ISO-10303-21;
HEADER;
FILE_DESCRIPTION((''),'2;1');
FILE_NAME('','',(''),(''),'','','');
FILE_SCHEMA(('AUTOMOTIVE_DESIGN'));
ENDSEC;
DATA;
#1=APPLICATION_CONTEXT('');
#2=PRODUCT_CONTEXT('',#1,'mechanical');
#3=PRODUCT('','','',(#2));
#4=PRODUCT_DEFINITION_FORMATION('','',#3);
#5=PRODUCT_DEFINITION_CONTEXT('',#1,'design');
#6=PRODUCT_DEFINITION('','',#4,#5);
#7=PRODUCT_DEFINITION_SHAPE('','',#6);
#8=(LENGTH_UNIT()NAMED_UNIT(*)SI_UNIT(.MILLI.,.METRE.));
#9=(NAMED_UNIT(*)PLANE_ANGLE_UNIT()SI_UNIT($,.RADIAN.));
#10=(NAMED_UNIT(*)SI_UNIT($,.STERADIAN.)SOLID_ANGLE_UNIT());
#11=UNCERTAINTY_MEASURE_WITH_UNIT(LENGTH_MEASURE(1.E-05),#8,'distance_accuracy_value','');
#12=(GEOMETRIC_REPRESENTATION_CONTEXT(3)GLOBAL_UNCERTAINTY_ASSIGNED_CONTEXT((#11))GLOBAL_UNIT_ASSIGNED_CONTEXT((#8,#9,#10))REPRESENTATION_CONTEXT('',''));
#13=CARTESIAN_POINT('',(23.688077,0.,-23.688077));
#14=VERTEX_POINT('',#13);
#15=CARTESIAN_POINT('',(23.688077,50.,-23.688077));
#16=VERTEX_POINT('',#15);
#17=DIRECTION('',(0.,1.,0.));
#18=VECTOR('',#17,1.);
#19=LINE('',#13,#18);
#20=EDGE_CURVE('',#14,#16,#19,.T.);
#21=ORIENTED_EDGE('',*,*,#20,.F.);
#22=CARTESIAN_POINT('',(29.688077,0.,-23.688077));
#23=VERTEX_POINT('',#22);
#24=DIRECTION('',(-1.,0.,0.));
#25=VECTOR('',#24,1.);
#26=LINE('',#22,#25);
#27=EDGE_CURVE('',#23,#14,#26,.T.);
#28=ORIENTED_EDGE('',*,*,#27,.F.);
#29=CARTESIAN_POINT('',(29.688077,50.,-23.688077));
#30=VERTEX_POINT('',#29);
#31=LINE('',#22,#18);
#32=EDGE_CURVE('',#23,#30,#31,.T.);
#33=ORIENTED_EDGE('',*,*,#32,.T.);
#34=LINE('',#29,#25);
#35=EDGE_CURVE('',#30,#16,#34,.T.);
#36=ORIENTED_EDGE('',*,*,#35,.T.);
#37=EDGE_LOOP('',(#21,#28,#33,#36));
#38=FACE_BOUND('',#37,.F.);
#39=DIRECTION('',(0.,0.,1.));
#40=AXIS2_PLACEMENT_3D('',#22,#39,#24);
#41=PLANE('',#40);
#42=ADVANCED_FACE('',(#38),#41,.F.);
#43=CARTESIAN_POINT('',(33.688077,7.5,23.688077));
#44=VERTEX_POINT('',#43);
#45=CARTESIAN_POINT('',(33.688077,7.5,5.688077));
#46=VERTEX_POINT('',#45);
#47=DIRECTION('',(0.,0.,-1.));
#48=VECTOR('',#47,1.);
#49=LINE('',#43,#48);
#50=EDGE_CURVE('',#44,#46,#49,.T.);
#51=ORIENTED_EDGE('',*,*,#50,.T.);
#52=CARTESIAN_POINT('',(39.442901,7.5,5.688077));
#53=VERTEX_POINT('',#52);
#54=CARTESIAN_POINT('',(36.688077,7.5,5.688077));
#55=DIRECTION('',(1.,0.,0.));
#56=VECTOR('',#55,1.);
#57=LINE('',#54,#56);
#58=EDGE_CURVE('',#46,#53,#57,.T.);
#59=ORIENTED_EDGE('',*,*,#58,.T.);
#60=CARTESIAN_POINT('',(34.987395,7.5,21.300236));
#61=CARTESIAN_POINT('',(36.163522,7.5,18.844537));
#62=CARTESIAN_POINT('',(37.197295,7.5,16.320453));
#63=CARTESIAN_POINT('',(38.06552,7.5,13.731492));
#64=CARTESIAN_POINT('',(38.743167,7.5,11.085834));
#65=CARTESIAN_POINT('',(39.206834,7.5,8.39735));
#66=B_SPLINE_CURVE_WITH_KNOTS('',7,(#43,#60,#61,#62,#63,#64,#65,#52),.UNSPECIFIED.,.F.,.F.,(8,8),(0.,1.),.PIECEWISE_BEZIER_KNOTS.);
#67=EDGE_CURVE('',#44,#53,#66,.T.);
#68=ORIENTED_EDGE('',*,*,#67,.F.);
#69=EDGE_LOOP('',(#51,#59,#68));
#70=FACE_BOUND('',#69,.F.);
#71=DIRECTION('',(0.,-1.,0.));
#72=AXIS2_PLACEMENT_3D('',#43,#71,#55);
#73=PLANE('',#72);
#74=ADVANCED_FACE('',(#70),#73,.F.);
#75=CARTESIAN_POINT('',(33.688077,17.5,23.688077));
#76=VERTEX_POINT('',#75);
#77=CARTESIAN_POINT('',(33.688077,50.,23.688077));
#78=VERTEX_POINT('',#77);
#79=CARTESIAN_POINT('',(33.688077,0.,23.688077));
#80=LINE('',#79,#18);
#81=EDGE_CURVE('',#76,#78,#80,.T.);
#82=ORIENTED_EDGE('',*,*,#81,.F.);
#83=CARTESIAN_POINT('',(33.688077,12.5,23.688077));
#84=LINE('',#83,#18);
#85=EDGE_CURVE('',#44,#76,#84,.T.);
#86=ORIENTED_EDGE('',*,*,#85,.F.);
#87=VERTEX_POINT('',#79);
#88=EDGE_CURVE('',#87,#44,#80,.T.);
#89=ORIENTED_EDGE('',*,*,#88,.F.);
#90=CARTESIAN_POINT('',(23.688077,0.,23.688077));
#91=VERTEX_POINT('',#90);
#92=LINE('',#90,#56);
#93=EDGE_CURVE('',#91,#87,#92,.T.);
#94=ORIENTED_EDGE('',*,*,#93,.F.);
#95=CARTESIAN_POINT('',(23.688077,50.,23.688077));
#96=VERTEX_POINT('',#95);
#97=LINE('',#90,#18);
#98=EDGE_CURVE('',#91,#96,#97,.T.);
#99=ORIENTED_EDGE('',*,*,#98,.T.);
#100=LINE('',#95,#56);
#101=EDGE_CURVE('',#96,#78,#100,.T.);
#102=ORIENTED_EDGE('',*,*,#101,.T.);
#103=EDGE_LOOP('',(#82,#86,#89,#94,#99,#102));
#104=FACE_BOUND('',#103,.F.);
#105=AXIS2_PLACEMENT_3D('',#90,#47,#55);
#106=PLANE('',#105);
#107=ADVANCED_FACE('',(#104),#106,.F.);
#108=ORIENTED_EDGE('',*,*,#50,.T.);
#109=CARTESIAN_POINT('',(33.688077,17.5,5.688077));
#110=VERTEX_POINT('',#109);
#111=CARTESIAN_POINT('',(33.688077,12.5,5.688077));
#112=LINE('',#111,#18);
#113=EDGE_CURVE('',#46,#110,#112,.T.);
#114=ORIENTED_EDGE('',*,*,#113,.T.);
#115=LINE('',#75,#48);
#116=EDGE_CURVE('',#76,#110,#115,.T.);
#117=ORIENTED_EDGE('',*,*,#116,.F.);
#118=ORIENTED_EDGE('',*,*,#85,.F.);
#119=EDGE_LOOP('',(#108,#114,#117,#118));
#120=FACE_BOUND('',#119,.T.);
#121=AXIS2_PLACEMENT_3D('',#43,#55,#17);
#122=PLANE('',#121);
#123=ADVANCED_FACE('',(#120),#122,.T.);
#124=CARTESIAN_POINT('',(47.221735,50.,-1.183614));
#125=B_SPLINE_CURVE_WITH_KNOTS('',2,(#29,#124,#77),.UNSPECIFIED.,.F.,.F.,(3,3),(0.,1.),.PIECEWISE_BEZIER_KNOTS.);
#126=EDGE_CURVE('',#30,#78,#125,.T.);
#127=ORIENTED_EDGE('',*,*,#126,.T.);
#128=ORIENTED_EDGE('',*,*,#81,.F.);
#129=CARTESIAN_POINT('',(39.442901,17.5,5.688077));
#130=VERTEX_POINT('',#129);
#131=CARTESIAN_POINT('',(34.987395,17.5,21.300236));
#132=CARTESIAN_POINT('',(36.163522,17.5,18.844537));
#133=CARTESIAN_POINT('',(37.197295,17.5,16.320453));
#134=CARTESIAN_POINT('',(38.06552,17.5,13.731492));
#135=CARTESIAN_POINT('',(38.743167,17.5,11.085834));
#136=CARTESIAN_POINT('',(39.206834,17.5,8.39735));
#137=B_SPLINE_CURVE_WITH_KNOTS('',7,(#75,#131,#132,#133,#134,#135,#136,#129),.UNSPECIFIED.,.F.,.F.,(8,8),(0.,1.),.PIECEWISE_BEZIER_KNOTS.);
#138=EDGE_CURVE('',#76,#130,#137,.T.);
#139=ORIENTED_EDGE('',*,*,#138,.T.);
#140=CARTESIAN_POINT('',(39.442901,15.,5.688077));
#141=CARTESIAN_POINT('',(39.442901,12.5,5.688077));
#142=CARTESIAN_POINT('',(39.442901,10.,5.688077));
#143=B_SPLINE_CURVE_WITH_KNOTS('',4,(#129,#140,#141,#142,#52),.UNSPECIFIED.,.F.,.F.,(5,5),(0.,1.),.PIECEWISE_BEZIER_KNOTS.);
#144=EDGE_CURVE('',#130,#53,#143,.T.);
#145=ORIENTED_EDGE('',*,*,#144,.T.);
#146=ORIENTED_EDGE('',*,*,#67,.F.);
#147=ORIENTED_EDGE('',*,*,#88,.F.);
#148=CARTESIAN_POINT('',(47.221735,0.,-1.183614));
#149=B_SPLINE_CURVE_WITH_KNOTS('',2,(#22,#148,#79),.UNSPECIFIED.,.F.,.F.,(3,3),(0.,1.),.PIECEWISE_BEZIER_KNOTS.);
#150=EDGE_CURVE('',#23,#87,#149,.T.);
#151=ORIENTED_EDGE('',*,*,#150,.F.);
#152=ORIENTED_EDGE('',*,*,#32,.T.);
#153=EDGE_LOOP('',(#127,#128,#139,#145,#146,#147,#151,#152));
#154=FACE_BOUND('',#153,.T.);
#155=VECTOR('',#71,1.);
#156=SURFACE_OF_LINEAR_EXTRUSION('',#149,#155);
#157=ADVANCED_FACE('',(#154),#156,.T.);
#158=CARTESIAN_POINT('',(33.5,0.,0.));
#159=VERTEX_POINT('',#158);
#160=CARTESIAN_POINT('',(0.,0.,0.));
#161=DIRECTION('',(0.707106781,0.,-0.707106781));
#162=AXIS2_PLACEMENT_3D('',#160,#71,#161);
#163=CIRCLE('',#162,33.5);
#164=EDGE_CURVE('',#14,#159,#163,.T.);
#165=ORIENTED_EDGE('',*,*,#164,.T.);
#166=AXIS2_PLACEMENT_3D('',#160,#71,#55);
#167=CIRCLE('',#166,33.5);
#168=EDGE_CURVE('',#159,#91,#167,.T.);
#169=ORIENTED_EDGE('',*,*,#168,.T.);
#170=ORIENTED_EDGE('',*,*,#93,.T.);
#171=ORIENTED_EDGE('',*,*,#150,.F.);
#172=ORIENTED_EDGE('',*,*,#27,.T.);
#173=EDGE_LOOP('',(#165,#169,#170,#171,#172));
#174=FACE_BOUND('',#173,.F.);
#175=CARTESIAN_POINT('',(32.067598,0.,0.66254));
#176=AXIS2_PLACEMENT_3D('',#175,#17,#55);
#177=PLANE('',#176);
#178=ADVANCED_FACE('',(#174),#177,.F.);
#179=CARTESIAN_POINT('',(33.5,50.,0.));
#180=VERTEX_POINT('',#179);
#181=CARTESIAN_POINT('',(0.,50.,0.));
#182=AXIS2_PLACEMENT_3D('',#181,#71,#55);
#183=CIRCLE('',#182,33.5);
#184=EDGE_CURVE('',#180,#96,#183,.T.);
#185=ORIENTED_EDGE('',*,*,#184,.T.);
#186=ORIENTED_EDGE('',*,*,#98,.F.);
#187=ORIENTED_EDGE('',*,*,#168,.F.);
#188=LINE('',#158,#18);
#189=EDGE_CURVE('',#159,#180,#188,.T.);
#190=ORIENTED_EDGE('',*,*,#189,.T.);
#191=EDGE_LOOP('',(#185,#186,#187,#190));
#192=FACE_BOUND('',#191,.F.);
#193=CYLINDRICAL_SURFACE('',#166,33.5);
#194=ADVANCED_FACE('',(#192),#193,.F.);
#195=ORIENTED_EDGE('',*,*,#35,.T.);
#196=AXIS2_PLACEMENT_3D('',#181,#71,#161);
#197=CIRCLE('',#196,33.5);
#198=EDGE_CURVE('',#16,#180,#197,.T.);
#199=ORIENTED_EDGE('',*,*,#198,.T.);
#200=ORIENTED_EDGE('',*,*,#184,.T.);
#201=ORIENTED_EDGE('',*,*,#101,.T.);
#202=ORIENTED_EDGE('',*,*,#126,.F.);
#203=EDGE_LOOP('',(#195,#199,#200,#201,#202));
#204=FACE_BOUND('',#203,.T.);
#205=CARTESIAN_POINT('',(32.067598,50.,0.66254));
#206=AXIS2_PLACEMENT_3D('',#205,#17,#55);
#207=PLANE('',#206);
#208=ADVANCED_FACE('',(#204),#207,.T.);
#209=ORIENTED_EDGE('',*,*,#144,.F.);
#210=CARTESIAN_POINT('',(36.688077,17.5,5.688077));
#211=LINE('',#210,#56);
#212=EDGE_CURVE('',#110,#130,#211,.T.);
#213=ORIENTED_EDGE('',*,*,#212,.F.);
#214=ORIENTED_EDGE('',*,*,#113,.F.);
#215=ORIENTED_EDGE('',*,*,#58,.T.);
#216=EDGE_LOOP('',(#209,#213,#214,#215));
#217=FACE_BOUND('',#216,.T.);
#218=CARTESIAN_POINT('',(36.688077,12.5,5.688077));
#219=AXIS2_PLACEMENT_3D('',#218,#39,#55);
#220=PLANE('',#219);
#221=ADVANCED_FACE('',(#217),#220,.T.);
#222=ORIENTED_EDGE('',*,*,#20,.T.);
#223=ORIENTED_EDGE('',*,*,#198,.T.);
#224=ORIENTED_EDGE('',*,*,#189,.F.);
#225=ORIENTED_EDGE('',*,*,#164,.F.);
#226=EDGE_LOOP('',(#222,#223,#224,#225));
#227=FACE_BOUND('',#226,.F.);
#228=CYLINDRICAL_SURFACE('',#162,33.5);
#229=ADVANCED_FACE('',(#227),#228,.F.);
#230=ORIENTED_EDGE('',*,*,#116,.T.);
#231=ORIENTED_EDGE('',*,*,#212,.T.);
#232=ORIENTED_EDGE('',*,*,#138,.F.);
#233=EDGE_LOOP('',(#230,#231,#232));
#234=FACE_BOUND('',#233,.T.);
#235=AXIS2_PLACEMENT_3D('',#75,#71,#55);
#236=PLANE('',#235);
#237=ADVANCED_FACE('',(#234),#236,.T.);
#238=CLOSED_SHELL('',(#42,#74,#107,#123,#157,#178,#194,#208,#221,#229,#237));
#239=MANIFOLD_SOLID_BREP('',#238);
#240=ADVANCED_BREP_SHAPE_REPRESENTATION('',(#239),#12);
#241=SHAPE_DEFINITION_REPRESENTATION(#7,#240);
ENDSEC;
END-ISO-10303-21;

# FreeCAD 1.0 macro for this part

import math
import FreeCAD as App
import Part
import Sketcher

V = App.Vector
Q = App.Units.Quantity

doc = App.newDocument("Part")
body = doc.addObject("PartDesign::Body", "Body")

# Sketch on XZ plane
sketch1 = body.newObject("Sketcher::SketchObject", "Sketch")
sketch1.AttachmentSupport = (doc.getObject("XZ_Plane"), [""])
sketch1.MapMode = "FlatFace"
sketch1.addGeometry([
    Part.LineSegment(V(29.688077, -23.688077, 0), V(23.688077, -23.688077, 0)),  # 0
    Part.ArcOfCircle(Part.Circle(V(0, 0, 0), V(0, 0, 1), 33.5), math.radians(-45), math.radians(0)),  # 1
    Part.ArcOfCircle(Part.Circle(V(0, 0, 0), V(0, 0, 1), 33.5), math.radians(0), math.radians(45)),  # 2
    Part.LineSegment(V(23.688077, 23.688077, 0), V(33.688077, 23.688077, 0)),  # 3
    Part.BSplineCurve([V(29.688077, -23.688077, 0), V(47.221735, -1.183614, 0), V(33.688077, 23.688077, 0)], [3, 3], [0, 1], False, 2, [1, 1, 1], False),  # 4
], False)
sketch1.addConstraint([
    Sketcher.Constraint("Block", 4),
    Sketcher.Constraint("Coincident", 0, 2, 1, 1),
    Sketcher.Constraint("Tangent", 1, 2, 2, 1),
    Sketcher.Constraint("Coincident", 2, 2, 3, 1),
    Sketcher.Constraint("Coincident", 3, 2, 4, 2),
    Sketcher.Constraint("Coincident", 4, 1, 0, 1),
    Sketcher.Constraint("Horizontal", 0),
    Sketcher.Constraint("Horizontal", 3),
    Sketcher.Constraint("Coincident", 1, 3, -1, 1),
    Sketcher.Constraint("Equal", 1, 2),
    Sketcher.Constraint("PointOnObject", 1, 2, -1),
    Sketcher.Constraint("Radius", 1, Q("33.5 mm")),
])
pad1 = body.newObject("PartDesign::Pad", "Pad")
pad1.Profile = sketch1
pad1.Length = 50
pad1.Reversed = True

# Sketch on XY plane
sketch2 = body.newObject("Sketcher::SketchObject", "Sketch001")
sketch2.AttachmentSupport = (doc.getObject("XY_Plane"), [""])
sketch2.MapMode = "FlatFace"
sketch2.AttachmentOffset = App.Placement(V(0, 0, 23.688077), App.Rotation())
sketch2.addGeometry([
    Part.LineSegment(V(34, 18, 0), V(34, 8, 0)),
    Part.LineSegment(V(34, 8, 0), V(40, 8, 0)),
    Part.LineSegment(V(40, 8, 0), V(40, 18, 0)),
    Part.LineSegment(V(40, 18, 0), V(34, 18, 0)),
], False)
sketch2.addConstraint([
    Sketcher.Constraint("Coincident", 0, 2, 1, 1),
    Sketcher.Constraint("Coincident", 1, 2, 2, 1),
    Sketcher.Constraint("Coincident", 2, 2, 3, 1),
    Sketcher.Constraint("Coincident", 3, 2, 0, 1),
    Sketcher.Constraint("Vertical", 0),
    Sketcher.Constraint("Horizontal", 1),
    Sketcher.Constraint("Vertical", 2),
    Sketcher.Constraint("Horizontal", 3),
    Sketcher.Constraint("DistanceX", 1, 1, 1, 2, Q("6 mm")),
    Sketcher.Constraint("DistanceY", 0, 2, 0, 1, Q("10 mm")),
    Sketcher.Constraint("DistanceY", -1, 1, 0, 2, Q("7.5 mm")),
    Sketcher.Constraint("DistanceX", -1, 1, 0, 2, Q("33.688077 mm")),
])
pocket1 = body.newObject("PartDesign::Pocket", "Pocket")
pocket1.Profile = sketch2
pocket1.Length = 18

doc.recompute()
